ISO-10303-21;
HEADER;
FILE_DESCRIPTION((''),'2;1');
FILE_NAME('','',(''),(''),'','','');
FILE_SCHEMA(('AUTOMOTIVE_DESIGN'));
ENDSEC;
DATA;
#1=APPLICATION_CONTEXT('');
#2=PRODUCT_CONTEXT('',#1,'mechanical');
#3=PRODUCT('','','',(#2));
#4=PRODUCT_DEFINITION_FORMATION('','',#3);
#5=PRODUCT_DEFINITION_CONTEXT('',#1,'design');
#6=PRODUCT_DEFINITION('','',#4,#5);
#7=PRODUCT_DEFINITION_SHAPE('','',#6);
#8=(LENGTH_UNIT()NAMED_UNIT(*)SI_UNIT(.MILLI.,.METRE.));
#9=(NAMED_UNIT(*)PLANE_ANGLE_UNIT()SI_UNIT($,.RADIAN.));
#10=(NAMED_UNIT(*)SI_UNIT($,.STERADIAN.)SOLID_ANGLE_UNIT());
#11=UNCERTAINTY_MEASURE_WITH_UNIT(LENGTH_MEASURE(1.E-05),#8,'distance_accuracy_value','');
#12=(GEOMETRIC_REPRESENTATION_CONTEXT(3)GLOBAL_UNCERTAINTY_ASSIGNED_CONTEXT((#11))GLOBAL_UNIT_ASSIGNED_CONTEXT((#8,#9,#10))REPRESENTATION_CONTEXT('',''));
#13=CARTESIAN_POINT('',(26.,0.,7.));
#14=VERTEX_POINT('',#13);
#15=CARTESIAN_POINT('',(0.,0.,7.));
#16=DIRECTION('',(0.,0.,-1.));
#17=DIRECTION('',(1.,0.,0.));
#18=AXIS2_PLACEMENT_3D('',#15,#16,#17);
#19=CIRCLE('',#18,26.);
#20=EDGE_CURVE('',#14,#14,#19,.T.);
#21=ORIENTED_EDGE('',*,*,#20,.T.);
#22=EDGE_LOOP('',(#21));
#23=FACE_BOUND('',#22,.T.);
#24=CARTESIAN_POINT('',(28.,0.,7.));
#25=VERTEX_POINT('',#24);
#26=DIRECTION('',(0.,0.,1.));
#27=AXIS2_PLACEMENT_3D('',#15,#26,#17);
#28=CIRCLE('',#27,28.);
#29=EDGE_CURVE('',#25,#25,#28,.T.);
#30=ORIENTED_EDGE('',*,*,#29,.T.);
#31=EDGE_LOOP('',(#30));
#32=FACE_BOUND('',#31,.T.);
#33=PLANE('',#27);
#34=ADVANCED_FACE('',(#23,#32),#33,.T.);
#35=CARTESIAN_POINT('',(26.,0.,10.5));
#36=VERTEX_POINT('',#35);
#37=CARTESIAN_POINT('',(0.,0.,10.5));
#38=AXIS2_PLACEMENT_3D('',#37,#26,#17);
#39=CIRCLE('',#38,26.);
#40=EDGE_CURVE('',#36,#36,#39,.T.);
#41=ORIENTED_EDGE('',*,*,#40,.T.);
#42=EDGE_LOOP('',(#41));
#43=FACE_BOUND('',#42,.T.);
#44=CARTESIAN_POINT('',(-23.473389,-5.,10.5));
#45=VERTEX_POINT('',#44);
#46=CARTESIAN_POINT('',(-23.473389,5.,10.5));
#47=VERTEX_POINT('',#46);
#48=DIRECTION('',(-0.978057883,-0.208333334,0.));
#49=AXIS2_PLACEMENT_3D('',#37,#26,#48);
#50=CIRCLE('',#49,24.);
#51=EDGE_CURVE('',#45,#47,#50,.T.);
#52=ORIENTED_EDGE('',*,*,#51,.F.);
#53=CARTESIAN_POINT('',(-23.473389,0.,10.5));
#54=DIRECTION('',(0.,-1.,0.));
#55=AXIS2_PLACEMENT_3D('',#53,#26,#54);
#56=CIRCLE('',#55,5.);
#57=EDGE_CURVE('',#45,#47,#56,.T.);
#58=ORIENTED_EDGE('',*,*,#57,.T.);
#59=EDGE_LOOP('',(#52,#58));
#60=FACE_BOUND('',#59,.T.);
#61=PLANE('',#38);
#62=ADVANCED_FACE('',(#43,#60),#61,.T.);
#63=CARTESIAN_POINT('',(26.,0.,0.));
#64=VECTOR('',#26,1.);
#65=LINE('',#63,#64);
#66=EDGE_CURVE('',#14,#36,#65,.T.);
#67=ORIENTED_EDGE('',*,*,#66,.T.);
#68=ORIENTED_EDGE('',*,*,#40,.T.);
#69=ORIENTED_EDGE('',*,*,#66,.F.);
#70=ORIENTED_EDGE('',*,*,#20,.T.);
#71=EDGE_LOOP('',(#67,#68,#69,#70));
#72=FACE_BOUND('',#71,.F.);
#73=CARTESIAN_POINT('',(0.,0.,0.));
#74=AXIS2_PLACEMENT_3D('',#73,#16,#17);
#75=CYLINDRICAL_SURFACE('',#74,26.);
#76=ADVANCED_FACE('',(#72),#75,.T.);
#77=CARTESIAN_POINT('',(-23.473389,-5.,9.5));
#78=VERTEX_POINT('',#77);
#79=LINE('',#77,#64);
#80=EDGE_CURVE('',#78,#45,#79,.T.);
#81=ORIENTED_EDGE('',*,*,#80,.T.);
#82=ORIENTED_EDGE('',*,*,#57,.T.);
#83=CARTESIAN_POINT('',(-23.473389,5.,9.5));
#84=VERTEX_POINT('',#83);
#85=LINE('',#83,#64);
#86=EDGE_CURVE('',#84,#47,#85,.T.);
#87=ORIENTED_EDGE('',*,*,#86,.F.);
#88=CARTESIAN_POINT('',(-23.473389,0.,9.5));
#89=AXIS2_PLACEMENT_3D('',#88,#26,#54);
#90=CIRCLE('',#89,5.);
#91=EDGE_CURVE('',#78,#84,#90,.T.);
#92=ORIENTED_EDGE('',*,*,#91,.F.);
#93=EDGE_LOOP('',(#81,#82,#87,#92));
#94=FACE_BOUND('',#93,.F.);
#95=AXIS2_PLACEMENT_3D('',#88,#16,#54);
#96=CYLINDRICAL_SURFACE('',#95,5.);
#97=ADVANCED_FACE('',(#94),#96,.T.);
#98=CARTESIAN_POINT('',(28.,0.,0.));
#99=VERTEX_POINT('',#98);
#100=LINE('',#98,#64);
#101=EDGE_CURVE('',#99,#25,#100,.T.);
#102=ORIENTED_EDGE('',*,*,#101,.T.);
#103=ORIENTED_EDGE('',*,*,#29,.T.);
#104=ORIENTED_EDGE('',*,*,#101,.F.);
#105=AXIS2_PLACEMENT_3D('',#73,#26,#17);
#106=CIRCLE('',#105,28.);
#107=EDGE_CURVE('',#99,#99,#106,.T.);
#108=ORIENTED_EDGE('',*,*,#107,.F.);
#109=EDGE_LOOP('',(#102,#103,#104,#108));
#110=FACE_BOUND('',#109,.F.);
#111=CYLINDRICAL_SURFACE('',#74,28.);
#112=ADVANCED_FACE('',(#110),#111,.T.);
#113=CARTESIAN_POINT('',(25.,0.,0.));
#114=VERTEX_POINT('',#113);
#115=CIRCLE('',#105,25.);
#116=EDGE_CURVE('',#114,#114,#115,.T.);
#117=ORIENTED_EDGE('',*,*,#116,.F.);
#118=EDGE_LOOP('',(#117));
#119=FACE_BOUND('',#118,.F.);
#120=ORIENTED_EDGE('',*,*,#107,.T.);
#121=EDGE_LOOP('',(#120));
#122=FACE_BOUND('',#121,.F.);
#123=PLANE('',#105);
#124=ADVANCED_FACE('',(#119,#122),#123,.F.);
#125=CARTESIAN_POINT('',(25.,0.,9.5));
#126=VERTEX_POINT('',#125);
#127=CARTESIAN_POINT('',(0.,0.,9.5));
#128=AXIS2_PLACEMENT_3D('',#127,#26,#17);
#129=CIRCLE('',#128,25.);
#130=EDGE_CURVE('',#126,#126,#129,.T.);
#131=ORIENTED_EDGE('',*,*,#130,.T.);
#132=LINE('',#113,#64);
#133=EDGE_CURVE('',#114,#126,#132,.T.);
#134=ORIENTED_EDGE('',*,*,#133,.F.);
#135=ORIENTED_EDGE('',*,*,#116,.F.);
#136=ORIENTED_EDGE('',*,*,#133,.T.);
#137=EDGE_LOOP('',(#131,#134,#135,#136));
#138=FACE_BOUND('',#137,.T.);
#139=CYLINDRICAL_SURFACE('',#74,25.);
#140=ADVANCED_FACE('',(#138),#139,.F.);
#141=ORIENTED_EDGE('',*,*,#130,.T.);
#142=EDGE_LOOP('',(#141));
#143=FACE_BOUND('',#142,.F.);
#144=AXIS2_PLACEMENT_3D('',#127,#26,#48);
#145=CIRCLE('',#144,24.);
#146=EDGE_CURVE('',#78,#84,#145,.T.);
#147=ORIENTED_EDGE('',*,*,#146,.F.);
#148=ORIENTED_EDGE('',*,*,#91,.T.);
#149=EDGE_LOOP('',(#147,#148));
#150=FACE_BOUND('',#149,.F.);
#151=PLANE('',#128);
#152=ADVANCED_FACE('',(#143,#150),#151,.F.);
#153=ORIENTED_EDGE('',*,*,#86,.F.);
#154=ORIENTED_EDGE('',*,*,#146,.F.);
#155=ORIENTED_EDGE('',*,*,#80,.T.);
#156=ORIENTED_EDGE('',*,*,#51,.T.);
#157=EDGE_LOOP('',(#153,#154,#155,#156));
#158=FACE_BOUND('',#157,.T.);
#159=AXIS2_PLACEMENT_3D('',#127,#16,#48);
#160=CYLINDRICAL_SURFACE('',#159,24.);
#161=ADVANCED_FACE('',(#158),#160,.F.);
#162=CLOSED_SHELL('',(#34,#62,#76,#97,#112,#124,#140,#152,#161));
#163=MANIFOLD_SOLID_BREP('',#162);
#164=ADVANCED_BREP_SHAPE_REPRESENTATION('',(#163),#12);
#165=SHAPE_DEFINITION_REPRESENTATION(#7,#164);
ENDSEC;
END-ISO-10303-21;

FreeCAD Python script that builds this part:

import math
import FreeCAD as App
import Part
import Sketcher

V = App.Vector
Q = App.Units.Quantity

doc = App.newDocument("Part")
params = doc.addObject("Spreadsheet::Sheet", "Params")
for row, (alias, value) in enumerate([
    ("sketch1_diameter", "56 mm"),
    ("sketch1_diameter2", "50 mm"),
    ("pad1_length", "7 mm"),
    ("sketch2_diameter", "52 mm"),
    ("sketch2_diameter2", "50 mm"),
    ("pad2_length", "10.5 mm"),
    ("sketch3_diameter", "50 mm"),
    ("sketch3_radius", "24 mm"),
    ("sketch3_radius2", "5 mm"),
    ("pad3_length", "1 mm"),
], start=1):
    params.set(f"A{row}", alias)
    params.set(f"B{row}", "=" + value)
    params.setAlias(f"B{row}", alias)

body = doc.addObject("PartDesign::Body", "Body")

# Sketch on XY plane
sketch1 = doc.addObject("Sketcher::SketchObject", "Sketch")
body.addObject(sketch1)
sketch1.AttachmentSupport = (doc.XY_Plane, [""])
sketch1.MapMode = "FlatFace"
sketch1.addGeometry(Part.Circle(V(0, 0, 0), V(0, 0, 1), 28), False)
sketch1.addGeometry(Part.Circle(V(0, 0, 0), V(0, 0, 1), 25), False)
sketch1.addConstraint(Sketcher.Constraint("Coincident", 0, 3, -1, 1))
sketch1.addConstraint(Sketcher.Constraint("Coincident", 1, 3, -1, 1))
sketch1.addConstraint(Sketcher.Constraint("Diameter", 0, Q("56 mm")))
sketch1.addConstraint(Sketcher.Constraint("Diameter", 1, Q("50 mm")))
sketch1.setExpression("Constraints[2]", "Params.sketch1_diameter")
sketch1.setExpression("Constraints[3]", "Params.sketch1_diameter2")
pad1 = doc.addObject("PartDesign::Pad", "Pad")
body.addObject(pad1)
pad1.Profile = sketch1
pad1.setExpression("Length", "Params.pad1_length")

# Sketch on XY plane
sketch2 = doc.addObject("Sketcher::SketchObject", "Sketch001")
body.addObject(sketch2)
sketch2.AttachmentSupport = (doc.XY_Plane, [""])
sketch2.MapMode = "FlatFace"
sketch2.addGeometry(Part.Circle(V(0, 0, 0), V(0, 0, 1), 26), False)
sketch2.addGeometry(Part.Circle(V(0, 0, 0), V(0, 0, 1), 25), False)
sketch2.addConstraint(Sketcher.Constraint("Coincident", 0, 3, -1, 1))
sketch2.addConstraint(Sketcher.Constraint("Coincident", 1, 3, -1, 1))
sketch2.addConstraint(Sketcher.Constraint("Diameter", 0, Q("52 mm")))
sketch2.addConstraint(Sketcher.Constraint("Diameter", 1, Q("50 mm")))
sketch2.setExpression("Constraints[2]", "Params.sketch2_diameter")
sketch2.setExpression("Constraints[3]", "Params.sketch2_diameter2")
pad2 = doc.addObject("PartDesign::Pad", "Pad001")
body.addObject(pad2)
pad2.Profile = sketch2
pad2.setExpression("Length", "Params.pad2_length")

# Sketch on XY plane
sketch3 = doc.addObject("Sketcher::SketchObject", "Sketch002")
body.addObject(sketch3)
sketch3.AttachmentSupport = (doc.XY_Plane, [""])
sketch3.MapMode = "FlatFace"
sketch3.AttachmentOffset = App.Placement(V(0, 0, 9.5), App.Rotation())
sketch3.addGeometry(Part.Circle(V(0, 0, 0), V(0, 0, 1), 25), False)
sketch3.addGeometry(Part.ArcOfCircle(Part.Circle(V(0, 0, 0), V(0, 0, 1), 24), math.radians(-168), math.radians(168)), False)
sketch3.addGeometry(Part.ArcOfCircle(Part.Circle(V(-23, 0, 0), V(0, 0, 1), 5), math.radians(-90), math.radians(90)), False)
sketch3.addConstraint(Sketcher.Constraint("Coincident", 1, 1, 2, 1))
sketch3.addConstraint(Sketcher.Constraint("Coincident", 2, 2, 1, 2))
sketch3.addConstraint(Sketcher.Constraint("Coincident", 0, 3, -1, 1))
sketch3.addConstraint(Sketcher.Constraint("Coincident", 1, 3, -1, 1))
sketch3.addConstraint(Sketcher.Constraint("PointOnObject", 2, 3, -1))
sketch3.addConstraint(Sketcher.Constraint("Vertical", 2, 3, 1, 1))
sketch3.addConstraint(Sketcher.Constraint("Diameter", 0, Q("50 mm")))
sketch3.addConstraint(Sketcher.Constraint("Radius", 1, Q("24 mm")))
sketch3.addConstraint(Sketcher.Constraint("Radius", 2, Q("5 mm")))
sketch3.setExpression("Constraints[6]", "Params.sketch3_diameter")
sketch3.setExpression("Constraints[7]", "Params.sketch3_radius")
sketch3.setExpression("Constraints[8]", "Params.sketch3_radius2")
pad3 = doc.addObject("PartDesign::Pad", "Pad002")
body.addObject(pad3)
pad3.Profile = sketch3
pad3.setExpression("Length", "Params.pad3_length")

doc.recompute()
